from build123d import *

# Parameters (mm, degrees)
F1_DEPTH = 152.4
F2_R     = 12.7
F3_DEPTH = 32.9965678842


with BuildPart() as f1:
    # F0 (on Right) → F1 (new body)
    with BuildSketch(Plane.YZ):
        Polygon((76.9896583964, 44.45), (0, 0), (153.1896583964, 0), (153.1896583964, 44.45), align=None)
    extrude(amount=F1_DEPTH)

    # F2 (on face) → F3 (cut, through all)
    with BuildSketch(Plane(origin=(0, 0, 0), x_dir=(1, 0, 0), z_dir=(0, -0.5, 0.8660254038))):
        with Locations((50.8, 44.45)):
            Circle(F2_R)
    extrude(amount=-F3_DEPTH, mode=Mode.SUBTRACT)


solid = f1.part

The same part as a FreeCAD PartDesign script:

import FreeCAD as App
import Part
import Sketcher

V = App.Vector
Q = App.Units.Quantity


def add_polygon(sketch, points):
    """Adds a closed chain of lines whose ends are joined by coincident constraints."""
    first, n = sketch.GeometryCount, len(points)
    for a, b in zip(points, points[1:] + points[:1]):
        sketch.addGeometry(Part.LineSegment(App.Vector(*a, 0), App.Vector(*b, 0)), False)
    for i in range(n):
        sketch.addConstraint(Sketcher.Constraint("Coincident", first + i, 2, first + (i + 1) % n, 1))

doc = App.newDocument("Part")
body = doc.addObject("PartDesign::Body", "Body")

# Sketch on YZ plane
sketch1 = body.newObject("Sketcher::SketchObject", "Sketch")
sketch1.AttachmentSupport = (doc.getObject("YZ_Plane"), [""])
sketch1.MapMode = "FlatFace"
add_polygon(sketch1, [(77, 44), (0, 0), (153, 0), (153, 44)])  # lines 0-3
sketch1.addConstraint(Sketcher.Constraint("Horizontal", 1))
sketch1.addConstraint(Sketcher.Constraint("Vertical", 2))
sketch1.addConstraint(Sketcher.Constraint("Horizontal", 3))
sketch1.addConstraint(Sketcher.Constraint("Coincident", 0, 2, -1, 1))
sketch1.addConstraint(Sketcher.Constraint("DistanceX", 3, 2, 3, 1, Q("3 in")))
sketch1.addConstraint(Sketcher.Constraint("Angle", 0, Q("-150 deg")))
sketch1.addConstraint(Sketcher.Constraint("Distance", 0, Q("3.5 in")))
pad1 = body.newObject("PartDesign::Pad", "Pad")
pad1.Profile = sketch1
pad1.Length = Q("6 in")

# Sketch on an angled plane
sketch2 = body.newObject("Sketcher::SketchObject", "Sketch001")
sketch2.Placement = App.Placement(V(0, 0, 0), App.Rotation(V(1, 0, 0), V(0, 0.866025404, 0.5), V(0, -0.5, 0.866025404), "ZXY"))
sketch2.addGeometry(Part.Circle(V(51, 44, 0), V(0, 0, 1), 13), False)
sketch2.addConstraint(Sketcher.Constraint("Diameter", 0, Q("1 in")))
sketch2.addConstraint(Sketcher.Constraint("DistanceX", -1, 1, 0, 3, Q("2 in")))
sketch2.addConstraint(Sketcher.Constraint("DistanceY", -1, 1, 0, 3, Q("1.75 in")))
pocket1 = body.newObject("PartDesign::Pocket", "Pocket")
pocket1.Profile = sketch2
pocket1.Type = "ThroughAll"

doc.recompute()
